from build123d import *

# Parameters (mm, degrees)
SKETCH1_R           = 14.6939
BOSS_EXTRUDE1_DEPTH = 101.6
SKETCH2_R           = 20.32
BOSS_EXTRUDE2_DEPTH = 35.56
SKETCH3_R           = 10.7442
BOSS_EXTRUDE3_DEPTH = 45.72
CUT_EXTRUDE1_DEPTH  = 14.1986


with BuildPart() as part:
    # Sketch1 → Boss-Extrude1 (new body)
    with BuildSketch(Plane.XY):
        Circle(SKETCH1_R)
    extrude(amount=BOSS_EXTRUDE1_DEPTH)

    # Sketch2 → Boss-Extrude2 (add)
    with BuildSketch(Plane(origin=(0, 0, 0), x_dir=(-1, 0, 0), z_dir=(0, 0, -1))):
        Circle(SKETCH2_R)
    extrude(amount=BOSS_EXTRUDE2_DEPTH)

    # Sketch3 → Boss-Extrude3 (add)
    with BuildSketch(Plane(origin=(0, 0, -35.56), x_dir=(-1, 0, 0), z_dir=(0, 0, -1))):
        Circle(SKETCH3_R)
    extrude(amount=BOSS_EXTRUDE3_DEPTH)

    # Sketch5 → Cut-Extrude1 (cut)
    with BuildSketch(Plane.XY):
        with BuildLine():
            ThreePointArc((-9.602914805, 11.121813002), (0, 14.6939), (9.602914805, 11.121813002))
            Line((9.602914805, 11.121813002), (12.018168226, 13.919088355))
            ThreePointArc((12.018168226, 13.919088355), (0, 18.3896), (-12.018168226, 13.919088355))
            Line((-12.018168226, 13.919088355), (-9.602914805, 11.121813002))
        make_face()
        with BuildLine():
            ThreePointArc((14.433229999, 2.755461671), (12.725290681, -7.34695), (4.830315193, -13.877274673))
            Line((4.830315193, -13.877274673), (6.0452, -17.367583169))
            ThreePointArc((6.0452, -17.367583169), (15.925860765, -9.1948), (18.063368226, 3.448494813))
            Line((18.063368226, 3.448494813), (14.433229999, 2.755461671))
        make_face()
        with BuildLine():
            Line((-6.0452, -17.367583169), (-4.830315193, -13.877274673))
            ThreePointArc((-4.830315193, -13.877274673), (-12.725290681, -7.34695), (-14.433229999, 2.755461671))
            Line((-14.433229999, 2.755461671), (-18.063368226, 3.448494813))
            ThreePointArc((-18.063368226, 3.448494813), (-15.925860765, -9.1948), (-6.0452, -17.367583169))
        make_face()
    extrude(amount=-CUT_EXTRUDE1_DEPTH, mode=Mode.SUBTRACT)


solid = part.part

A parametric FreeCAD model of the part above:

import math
import FreeCAD as App
import Part
import Sketcher
Q = App.Units.Quantity

doc = App.newDocument("Part")
body = doc.addObject("PartDesign::Body", "Body")

# Sketch on XY plane
sketch1 = body.newObject("Sketcher::SketchObject", "Sketch")
sketch1.AttachmentSupport = (doc.getObject("XY_Plane"), [""])
sketch1.MapMode = "FlatFace"
sketch1.addGeometry(Part.Circle(App.Vector(0, 0, 0), App.Vector(0, 0, 1), 14.6939), False)
sketch1.addConstraint(Sketcher.Constraint("Coincident", 0, 3, -1, 1))
sketch1.addConstraint(Sketcher.Constraint("Diameter", 0, Q("1.157 in")))
pad1 = body.newObject("PartDesign::Pad", "Pad")
pad1.Profile = sketch1
pad1.Length = Q("4 in")

# Sketch on XY plane
sketch2 = body.newObject("Sketcher::SketchObject", "Sketch001")
sketch2.AttachmentSupport = (doc.getObject("XY_Plane"), [""])
sketch2.MapMode = "FlatFace"
sketch2.addGeometry(Part.Circle(App.Vector(0, 0, 0), App.Vector(0, 0, 1), 20.32), False)
sketch2.addConstraint(Sketcher.Constraint("Coincident", 0, 3, -1, 1))
sketch2.addConstraint(Sketcher.Constraint("Diameter", 0, Q("1.6 in")))
pad2 = body.newObject("PartDesign::Pad", "Pad001")
pad2.Profile = sketch2
pad2.Length = Q("1.4 in")
pad2.Reversed = True

# Sketch on XY plane
sketch3 = body.newObject("Sketcher::SketchObject", "Sketch002")
sketch3.AttachmentSupport = (doc.getObject("XY_Plane"), [""])
sketch3.MapMode = "FlatFace"
sketch3.AttachmentOffset = App.Placement(App.Vector(0, 0, -1.4 * 25.4), App.Rotation())
sketch3.addGeometry(Part.Circle(App.Vector(0, 0, 0), App.Vector(0, 0, 1), 10.7442), False)
sketch3.addConstraint(Sketcher.Constraint("Coincident", 0, 3, -1, 1))
sketch3.addConstraint(Sketcher.Constraint("Diameter", 0, Q("0.846 in")))
pad3 = body.newObject("PartDesign::Pad", "Pad002")
pad3.Profile = sketch3
pad3.Length = Q("1.8 in")
pad3.Reversed = True

# Sketch on XY plane
sketch4 = body.newObject("Sketcher::SketchObject", "Sketch003")
sketch4.AttachmentSupport = (doc.getObject("XY_Plane"), [""])
sketch4.MapMode = "FlatFace"
sketch4.addGeometry(Part.ArcOfCircle(Part.Circle(App.Vector(0, 0, 0), App.Vector(0, 0, 1), 14.6939), math.radians(49.191666), math.radians(130.808334)), False)
sketch4.addGeometry(Part.LineSegment(App.Vector(9.602915, 11.121813, 0), App.Vector(12.018168, 13.919088, 0)), False)
sketch4.addGeometry(Part.ArcOfCircle(Part.Circle(App.Vector(0, 0, 0), App.Vector(0, 0, 1), 18.3896), math.radians(49.191666), math.radians(130.808334)), False)
sketch4.addGeometry(Part.LineSegment(App.Vector(-12.018168, 13.919088, 0), App.Vector(-9.602915, 11.121813, 0)), False)
sketch4.addGeometry(Part.ArcOfCircle(Part.Circle(App.Vector(0, 0, 0), App.Vector(0, 0, 1), 14.6939), math.radians(-70.808334), math.radians(10.808334)), False)
sketch4.addGeometry(Part.LineSegment(App.Vector(4.830315, -13.877275, 0), App.Vector(6.0452, -17.367583, 0)), False)
sketch4.addGeometry(Part.ArcOfCircle(Part.Circle(App.Vector(0, 0, 0), App.Vector(0, 0, 1), 18.3896), math.radians(-70.808334), math.radians(10.808334)), False)
sketch4.addGeometry(Part.LineSegment(App.Vector(18.063368, 3.448495, 0), App.Vector(14.43323, 2.755462, 0)), False)
sketch4.addGeometry(Part.LineSegment(App.Vector(-6.0452, -17.367583, 0), App.Vector(-4.830315, -13.877275, 0)), False)
sketch4.addGeometry(Part.ArcOfCircle(Part.Circle(App.Vector(0, 0, 0), App.Vector(0, 0, 1), 14.6939), math.radians(169.191666), math.radians(250.808334)), False)
sketch4.addGeometry(Part.LineSegment(App.Vector(-14.43323, 2.755462, 0), App.Vector(-18.063368, 3.448495, 0)), False)
sketch4.addGeometry(Part.ArcOfCircle(Part.Circle(App.Vector(0, 0, 0), App.Vector(0, 0, 1), 18.3896), math.radians(169.191666), math.radians(250.808334)), False)
sketch4.addConstraint(Sketcher.Constraint("Coincident", 0, 1, 1, 1))
sketch4.addConstraint(Sketcher.Constraint("Coincident", 1, 2, 2, 1))
sketch4.addConstraint(Sketcher.Constraint("Coincident", 2, 2, 3, 1))
sketch4.addConstraint(Sketcher.Constraint("Coincident", 3, 2, 0, 2))
sketch4.addConstraint(Sketcher.Constraint("Coincident", 4, 1, 5, 1))
sketch4.addConstraint(Sketcher.Constraint("Coincident", 5, 2, 6, 1))
sketch4.addConstraint(Sketcher.Constraint("Coincident", 6, 2, 7, 1))
sketch4.addConstraint(Sketcher.Constraint("Coincident", 7, 2, 4, 2))
sketch4.addConstraint(Sketcher.Constraint("Coincident", 8, 2, 9, 2))
sketch4.addConstraint(Sketcher.Constraint("Coincident", 9, 1, 10, 1))
sketch4.addConstraint(Sketcher.Constraint("Coincident", 10, 2, 11, 1))
sketch4.addConstraint(Sketcher.Constraint("Coincident", 11, 2, 8, 1))
sketch4.addConstraint(Sketcher.Constraint("Coincident", 0, 3, -1, 1))
sketch4.addConstraint(Sketcher.Constraint("Coincident", 2, 3, -1, 1))
sketch4.addConstraint(Sketcher.Constraint("Coincident", 4, 3, -1, 1))
sketch4.addConstraint(Sketcher.Constraint("Coincident", 6, 3, -1, 1))
sketch4.addConstraint(Sketcher.Constraint("Coincident", 9, 3, -1, 1))
sketch4.addConstraint(Sketcher.Constraint("Coincident", 11, 3, -1, 1))
sketch4.addConstraint(Sketcher.Constraint("Equal", 0, 4))
sketch4.addConstraint(Sketcher.Constraint("Equal", 2, 6))
sketch4.addConstraint(Sketcher.Constraint("Equal", 4, 9))
sketch4.addConstraint(Sketcher.Constraint("Equal", 6, 11))
sketch4.addConstraint(Sketcher.Constraint("Horizontal", 1, 2, 2, 2))
sketch4.addConstraint(Sketcher.Constraint("Horizontal", 0, 1, 3, 2))
sketch4.addConstraint(Sketcher.Constraint("Horizontal", 4, 1, 8, 2))
sketch4.addConstraint(Sketcher.Constraint("Horizontal", 7, 2, 9, 1))
sketch4.addConstraint(Sketcher.Constraint("Horizontal", 6, 2, 10, 2))
sketch4.addConstraint(Sketcher.Constraint("Horizontal", 5, 2, 11, 2))
sketch4.addConstraint(Sketcher.Constraint("Radius", 2, Q("0.724 in")))
sketch4.addConstraint(Sketcher.Constraint("Radius", 0, Q("0.5785 in")))
sketch4.addConstraint(Sketcher.Constraint("DistanceX", -1, 1, 5, 2, Q("0.238 in")))
sketch4.addConstraint(Sketcher.Constraint("DistanceX", 1, 2, 6, 2, Q("0.238 in")))
sketch4.addConstraint(Sketcher.Constraint("DistanceX", -1, 1, 1, 2, Q("12.018168 mm")))
sketch4.addConstraint(Sketcher.Constraint("DistanceX", -1, 1, 7, 2, Q("14.43323 mm")))
sketch4.addConstraint(Sketcher.Constraint("DistanceY", 5, 2, 4, 1, Q("3.490308 mm")))
sketch4.addConstraint(Sketcher.Constraint("DistanceY", 6, 2, 0, 1, Q("7.673318 mm")))
pocket1 = body.newObject("PartDesign::Pocket", "Pocket")
pocket1.Profile = sketch4
pocket1.Length = Q("0.559 in")

doc.recompute()
